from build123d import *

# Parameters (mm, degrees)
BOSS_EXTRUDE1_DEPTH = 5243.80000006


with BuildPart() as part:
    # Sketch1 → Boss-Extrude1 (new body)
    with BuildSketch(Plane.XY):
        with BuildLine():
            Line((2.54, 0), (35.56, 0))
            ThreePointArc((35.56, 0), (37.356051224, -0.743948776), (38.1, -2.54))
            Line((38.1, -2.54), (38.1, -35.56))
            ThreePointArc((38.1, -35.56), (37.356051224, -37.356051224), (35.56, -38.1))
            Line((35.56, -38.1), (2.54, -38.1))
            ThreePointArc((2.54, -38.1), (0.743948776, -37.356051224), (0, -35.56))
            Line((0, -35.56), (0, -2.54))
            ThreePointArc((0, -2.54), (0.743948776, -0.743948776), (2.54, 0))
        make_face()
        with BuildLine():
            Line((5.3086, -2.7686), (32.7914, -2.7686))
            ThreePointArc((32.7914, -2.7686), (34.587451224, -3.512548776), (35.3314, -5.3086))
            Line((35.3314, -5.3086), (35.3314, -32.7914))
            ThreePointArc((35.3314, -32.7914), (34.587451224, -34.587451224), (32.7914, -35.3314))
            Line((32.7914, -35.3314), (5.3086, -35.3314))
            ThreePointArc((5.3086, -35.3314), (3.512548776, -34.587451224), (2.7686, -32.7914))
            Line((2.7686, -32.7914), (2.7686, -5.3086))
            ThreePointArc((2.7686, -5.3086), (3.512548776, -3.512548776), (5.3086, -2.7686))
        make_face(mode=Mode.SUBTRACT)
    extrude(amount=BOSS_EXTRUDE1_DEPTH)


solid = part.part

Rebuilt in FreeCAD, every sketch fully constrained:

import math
import FreeCAD as App
import Part
import Sketcher
from FreeCAD import Vector
Q = App.Units.Quantity

doc = App.newDocument("Part")
body = doc.addObject("PartDesign::Body", "Body")

sketch1 = body.newObject("Sketcher::SketchObject", "Sketch")
sketch1.AttachmentSupport = (doc.getObject("XY_Plane"), [""])
sketch1.MapMode = "FlatFace"
sketch1.addGeometry([
    Part.LineSegment(Vector(35.6, 0, 0), Vector(2.5, 0, 0)),
    Part.ArcOfCircle(Part.Circle(Vector(2.5, -2.5, 0), Vector(0, 0, 1), 2.5), math.radians(90), math.radians(180)),
    Part.LineSegment(Vector(0, -2.5, 0), Vector(0, -35.6, 0)),
    Part.ArcOfCircle(Part.Circle(Vector(2.5, -35.6, 0), Vector(0, 0, 1), 2.5), math.radians(-180), math.radians(-90)),
    Part.LineSegment(Vector(2.5, -38.1, 0), Vector(35.6, -38.1, 0)),
    Part.ArcOfCircle(Part.Circle(Vector(35.6, -35.6, 0), Vector(0, 0, 1), 2.5), math.radians(-90), math.radians(0)),
    Part.LineSegment(Vector(38.1, -35.6, 0), Vector(38.1, -2.5, 0)),
    Part.ArcOfCircle(Part.Circle(Vector(35.6, -2.5, 0), Vector(0, 0, 1), 2.5), math.radians(0), math.radians(90)),
    Part.LineSegment(Vector(5.3, -2.8, 0), Vector(32.8, -2.8, 0)),
    Part.ArcOfCircle(Part.Circle(Vector(32.8, -5.3, 0), Vector(0, 0, 1), 2.5), math.radians(0), math.radians(90)),
    Part.LineSegment(Vector(35.3, -5.3, 0), Vector(35.3, -32.8, 0)),
    Part.ArcOfCircle(Part.Circle(Vector(32.8, -32.8, 0), Vector(0, 0, 1), 2.5), math.radians(-90), math.radians(0)),
    Part.LineSegment(Vector(32.8, -35.3, 0), Vector(5.3, -35.3, 0)),
    Part.ArcOfCircle(Part.Circle(Vector(5.3, -32.8, 0), Vector(0, 0, 1), 2.5), math.radians(-180), math.radians(-90)),
    Part.LineSegment(Vector(2.8, -32.8, 0), Vector(2.8, -5.3, 0)),
    Part.ArcOfCircle(Part.Circle(Vector(5.3, -5.3, 0), Vector(0, 0, 1), 2.5), math.radians(90), math.radians(180)),
], False)
sketch1.addConstraint([
    Sketcher.Constraint("Tangent", 0, 2, 1, 1),
    Sketcher.Constraint("Tangent", 1, 2, 2, 1),
    Sketcher.Constraint("Tangent", 2, 2, 3, 1),
    Sketcher.Constraint("Tangent", 3, 2, 4, 1),
    Sketcher.Constraint("Tangent", 4, 2, 5, 1),
    Sketcher.Constraint("Tangent", 5, 2, 6, 1),
    Sketcher.Constraint("Tangent", 6, 2, 7, 1),
    Sketcher.Constraint("Tangent", 7, 2, 0, 1),
    Sketcher.Constraint("Tangent", 8, 2, 9, 2),
    Sketcher.Constraint("Tangent", 9, 1, 10, 1),
    Sketcher.Constraint("Tangent", 10, 2, 11, 2),
    Sketcher.Constraint("Tangent", 11, 1, 12, 1),
    Sketcher.Constraint("Tangent", 12, 2, 13, 2),
    Sketcher.Constraint("Tangent", 13, 1, 14, 1),
    Sketcher.Constraint("Tangent", 14, 2, 15, 2),
    Sketcher.Constraint("Tangent", 15, 1, 8, 1),
    Sketcher.Constraint("Horizontal", 0),
    Sketcher.Constraint("Vertical", 2),
    Sketcher.Constraint("Horizontal", 4),
    Sketcher.Constraint("Vertical", 6),
    Sketcher.Constraint("Horizontal", 8),
    Sketcher.Constraint("Vertical", 10),
    Sketcher.Constraint("Horizontal", 12),
    Sketcher.Constraint("Vertical", 14),
    Sketcher.Constraint("Equal", 1, 3),
    Sketcher.Constraint("Equal", 3, 5),
    Sketcher.Constraint("Equal", 5, 7),
    Sketcher.Constraint("Equal", 7, 9),
    Sketcher.Constraint("Equal", 9, 11),
    Sketcher.Constraint("Equal", 11, 13),
    Sketcher.Constraint("Equal", 13, 15),
    Sketcher.Constraint("PointOnObject", 0, 2, -1),
    Sketcher.Constraint("PointOnObject", 1, 2, -2),
    Sketcher.Constraint("Equal", 4, 2),
    Sketcher.Constraint("Equal", 12, 10),
    Sketcher.Constraint("Radius", 1, Q("0.1 in")),
    Sketcher.Constraint("DistanceX", 0, 2, 0, 1, Q("1.3 in")),
    Sketcher.Constraint("DistanceX", 8, 1, 8, 2, Q("1.082 in")),
    Sketcher.Constraint("DistanceX", -1, 1, 9, 3, Q("1.291 in")),
    Sketcher.Constraint("DistanceY", 9, 3, -1, 1, Q("0.209 in")),
])
pad1 = body.newObject("PartDesign::Pad", "Pad")
pad1.Profile = sketch1
pad1.Length = 5243.8

doc.recompute()
